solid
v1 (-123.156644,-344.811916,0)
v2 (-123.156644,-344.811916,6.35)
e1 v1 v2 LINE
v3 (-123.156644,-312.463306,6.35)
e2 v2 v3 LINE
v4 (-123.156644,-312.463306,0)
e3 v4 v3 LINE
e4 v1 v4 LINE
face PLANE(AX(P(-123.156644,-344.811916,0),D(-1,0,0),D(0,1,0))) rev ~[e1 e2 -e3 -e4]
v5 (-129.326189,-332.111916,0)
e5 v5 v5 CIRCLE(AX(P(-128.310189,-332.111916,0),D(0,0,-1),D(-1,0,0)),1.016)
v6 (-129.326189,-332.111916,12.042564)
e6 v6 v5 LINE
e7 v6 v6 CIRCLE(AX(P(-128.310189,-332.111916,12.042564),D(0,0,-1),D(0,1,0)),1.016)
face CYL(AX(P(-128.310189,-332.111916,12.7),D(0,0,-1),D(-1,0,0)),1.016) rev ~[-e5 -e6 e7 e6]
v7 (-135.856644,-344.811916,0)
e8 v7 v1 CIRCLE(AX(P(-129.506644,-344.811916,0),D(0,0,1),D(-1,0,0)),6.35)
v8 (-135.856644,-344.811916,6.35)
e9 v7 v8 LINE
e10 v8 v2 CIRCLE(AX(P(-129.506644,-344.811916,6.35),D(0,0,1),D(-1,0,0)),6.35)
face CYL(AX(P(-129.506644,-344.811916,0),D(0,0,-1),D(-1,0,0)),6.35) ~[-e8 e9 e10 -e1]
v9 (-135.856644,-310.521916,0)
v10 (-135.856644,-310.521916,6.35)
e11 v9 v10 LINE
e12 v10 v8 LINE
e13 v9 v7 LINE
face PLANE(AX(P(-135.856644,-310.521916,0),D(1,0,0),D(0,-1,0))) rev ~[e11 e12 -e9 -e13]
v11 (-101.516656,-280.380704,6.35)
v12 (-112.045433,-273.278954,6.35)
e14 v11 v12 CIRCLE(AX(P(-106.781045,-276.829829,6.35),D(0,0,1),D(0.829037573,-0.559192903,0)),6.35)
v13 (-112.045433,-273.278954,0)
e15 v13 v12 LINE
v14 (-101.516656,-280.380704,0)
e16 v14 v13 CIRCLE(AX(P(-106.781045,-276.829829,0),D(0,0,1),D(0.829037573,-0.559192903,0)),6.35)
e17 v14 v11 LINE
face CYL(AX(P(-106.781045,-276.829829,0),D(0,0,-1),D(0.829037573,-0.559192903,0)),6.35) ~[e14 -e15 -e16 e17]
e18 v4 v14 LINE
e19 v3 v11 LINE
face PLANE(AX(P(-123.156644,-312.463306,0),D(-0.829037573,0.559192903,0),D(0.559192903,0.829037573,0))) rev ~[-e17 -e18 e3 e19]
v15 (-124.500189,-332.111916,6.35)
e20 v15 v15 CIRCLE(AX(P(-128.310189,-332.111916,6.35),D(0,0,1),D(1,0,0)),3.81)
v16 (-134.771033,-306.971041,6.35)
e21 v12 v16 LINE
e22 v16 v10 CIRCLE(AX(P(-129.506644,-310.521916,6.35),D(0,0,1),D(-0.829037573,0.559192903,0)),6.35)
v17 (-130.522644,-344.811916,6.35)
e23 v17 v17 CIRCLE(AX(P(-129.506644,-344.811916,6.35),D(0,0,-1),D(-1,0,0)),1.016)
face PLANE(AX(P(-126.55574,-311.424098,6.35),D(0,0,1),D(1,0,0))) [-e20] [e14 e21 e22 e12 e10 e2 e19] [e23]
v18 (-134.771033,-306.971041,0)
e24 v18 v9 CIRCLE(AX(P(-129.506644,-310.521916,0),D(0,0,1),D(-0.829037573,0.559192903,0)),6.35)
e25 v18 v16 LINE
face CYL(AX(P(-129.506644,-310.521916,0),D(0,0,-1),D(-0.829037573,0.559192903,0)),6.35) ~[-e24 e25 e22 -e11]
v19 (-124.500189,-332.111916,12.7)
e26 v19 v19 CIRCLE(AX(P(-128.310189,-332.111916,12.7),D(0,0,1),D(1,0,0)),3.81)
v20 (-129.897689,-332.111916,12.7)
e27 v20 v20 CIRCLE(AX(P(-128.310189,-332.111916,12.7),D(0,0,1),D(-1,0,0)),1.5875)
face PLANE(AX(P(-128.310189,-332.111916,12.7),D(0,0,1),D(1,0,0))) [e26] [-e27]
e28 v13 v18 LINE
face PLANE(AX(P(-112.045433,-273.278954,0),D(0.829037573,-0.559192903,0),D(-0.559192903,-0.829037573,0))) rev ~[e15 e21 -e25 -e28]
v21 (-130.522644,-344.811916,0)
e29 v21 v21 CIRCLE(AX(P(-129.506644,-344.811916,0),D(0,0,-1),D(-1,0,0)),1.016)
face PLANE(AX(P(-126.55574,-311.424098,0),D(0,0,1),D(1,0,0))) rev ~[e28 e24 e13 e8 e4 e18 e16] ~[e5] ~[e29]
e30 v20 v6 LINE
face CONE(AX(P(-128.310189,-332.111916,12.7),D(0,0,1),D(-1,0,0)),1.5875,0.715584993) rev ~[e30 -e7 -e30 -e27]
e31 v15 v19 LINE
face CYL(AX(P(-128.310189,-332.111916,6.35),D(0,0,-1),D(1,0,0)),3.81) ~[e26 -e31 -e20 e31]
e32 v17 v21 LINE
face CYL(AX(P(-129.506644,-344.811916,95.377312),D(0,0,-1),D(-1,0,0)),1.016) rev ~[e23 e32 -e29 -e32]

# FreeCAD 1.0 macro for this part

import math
import FreeCAD as App
import Part
import Sketcher

V = App.Vector
Q = App.Units.Quantity

doc = App.newDocument("Part")
body = doc.addObject("PartDesign::Body", "Body")

sketch1 = body.newObject("Sketcher::SketchObject", "Sketch")
sketch1.AttachmentSupport = (doc.getObject("XY_Plane"), [""])
sketch1.MapMode = "FlatFace"
sketch1.addGeometry(Part.ArcOfCircle(Part.Circle(V(-129.506644, -310.521916, 0), V(0, 0, 1), 6.35), math.radians(146), math.radians(180)), False)
sketch1.addGeometry(Part.LineSegment(V(-135.856644, -310.521916, 0), V(-135.856644, -344.811916, 0)), False)
sketch1.addGeometry(Part.ArcOfCircle(Part.Circle(V(-129.506644, -344.811916, 0), V(0, 0, 1), 6.35), math.radians(180), math.radians(360)), False)
sketch1.addGeometry(Part.LineSegment(V(-123.156644, -344.811916, 0), V(-123.156644, -312.463306, 0)), False)
sketch1.addGeometry(Part.LineSegment(V(-123.156644, -312.463306, 0), V(-101.516656, -280.380704, 0)), False)
sketch1.addGeometry(Part.ArcOfCircle(Part.Circle(V(-106.781045, -276.829829, 0), V(0, 0, 1), 6.35), math.radians(-34), math.radians(146)), False)
sketch1.addGeometry(Part.LineSegment(V(-112.045433, -273.278954, 0), V(-134.771033, -306.971041, 0)), False)
sketch1.addConstraint(Sketcher.Constraint("Tangent", 0, 2, 1, 1))
sketch1.addConstraint(Sketcher.Constraint("Tangent", 1, 2, 2, 1))
sketch1.addConstraint(Sketcher.Constraint("Tangent", 2, 2, 3, 1))
sketch1.addConstraint(Sketcher.Constraint("Coincident", 3, 2, 4, 1))
sketch1.addConstraint(Sketcher.Constraint("Tangent", 4, 2, 5, 1))
sketch1.addConstraint(Sketcher.Constraint("Tangent", 5, 2, 6, 1))
sketch1.addConstraint(Sketcher.Constraint("Tangent", 6, 2, 0, 1))
sketch1.addConstraint(Sketcher.Constraint("Vertical", 1))
sketch1.addConstraint(Sketcher.Constraint("Vertical", 3))
sketch1.addConstraint(Sketcher.Constraint("Equal", 0, 2))
sketch1.addConstraint(Sketcher.Constraint("Equal", 2, 5))
sketch1.addConstraint(Sketcher.Constraint("Parallel", 4, 6))
sketch1.addConstraint(Sketcher.Constraint("Radius", 0, Q("0.25 in")))
sketch1.addConstraint(Sketcher.Constraint("Angle", 4, Q("56 deg")))
sketch1.addConstraint(Sketcher.Constraint("Distance", 6, Q("1.6 in")))
sketch1.addConstraint(Sketcher.Constraint("DistanceY", 1, 2, 1, 1, Q("1.35 in")))
sketch1.addConstraint(Sketcher.Constraint("DistanceY", 5, 3, -1, 1, 276.829829))
sketch1.addConstraint(Sketcher.Constraint("DistanceX", 0, 3, -1, 1, 129.506644))
pad1 = body.newObject("PartDesign::Pad", "Pad")
pad1.Profile = sketch1
pad1.Length = Q("0.25 in")

sketch2 = body.newObject("Sketcher::SketchObject", "Sketch001")
sketch2.AttachmentSupport = (doc.getObject("XY_Plane"), [""])
sketch2.MapMode = "FlatFace"
sketch2.AttachmentOffset = App.Placement(V(0, 0, 0.25 * 25.4), App.Rotation())
sketch2.addGeometry(Part.Circle(V(-128.310189, -332.111916, 0), V(0, 0, 1), 3.81), False)
sketch2.addConstraint(Sketcher.Constraint("Diameter", 0, Q("0.3 in")))
sketch2.addConstraint(Sketcher.Constraint("DistanceX", 0, 3, -1, 1, 128.310189))
sketch2.addConstraint(Sketcher.Constraint("DistanceY", 0, 3, -1, 1, 332.111916))
pad2 = body.newObject("PartDesign::Pad", "Pad001")
pad2.Profile = sketch2
pad2.Length = Q("0.25 in")

sketch3 = body.newObject("Sketcher::SketchObject", "Sketch002")
sketch3.AttachmentSupport = (doc.getObject("XY_Plane"), [""])
sketch3.MapMode = "FlatFace"
sketch3.AttachmentOffset = App.Placement(V(0, 0, 0.5 * 25.4), App.Rotation())
sketch3.addGeometry(Part.Circle(V(-128.310189, -332.111916, 0), V(0, 0, 1), 1.016), False)
sketch3.addConstraint(Sketcher.Constraint("Diameter", 0, Q("0.08 in")))
sketch3.addConstraint(Sketcher.Constraint("DistanceX", 0, 3, -1, 1, 128.310189))
sketch3.addConstraint(Sketcher.Constraint("DistanceY", 0, 3, -1, 1, 332.111916))
doc.recompute()
hole = body.newObject("PartDesign::Hole", "Hole")
hole.Profile = sketch3
hole.ThreadType = "None"
hole.Diameter = Q("0.08 in")
hole.DepthType = "ThroughAll"
hole.HoleCutType = "Countersink"
hole.HoleCutDiameter = Q("0.125 in")
hole.HoleCutCountersinkAngle = 82

sketch4 = body.newObject("Sketcher::SketchObject", "Sketch003")
sketch4.AttachmentSupport = (doc.getObject("XY_Plane"), [""])
sketch4.MapMode = "FlatFace"
sketch4.AttachmentOffset = App.Placement(V(0, 0, 0.25 * 25.4), App.Rotation())
sketch4.addGeometry(Part.Circle(V(-129.506644, -344.811916, 0), V(0, 0, 1), 1.016), False)
sketch4.addConstraint(Sketcher.Constraint("Diameter", 0, Q("0.08 in")))
sketch4.addConstraint(Sketcher.Constraint("DistanceX", 0, 3, -1, 1, 129.506644))
sketch4.addConstraint(Sketcher.Constraint("DistanceY", 0, 3, -1, 1, 344.811916))
doc.recompute()
hole2 = body.newObject("PartDesign::Hole", "Hole001")
hole2.Profile = sketch4
hole2.ThreadType = "None"
hole2.Diameter = Q("0.08 in")
hole2.DepthType = "ThroughAll"

doc.recompute()
